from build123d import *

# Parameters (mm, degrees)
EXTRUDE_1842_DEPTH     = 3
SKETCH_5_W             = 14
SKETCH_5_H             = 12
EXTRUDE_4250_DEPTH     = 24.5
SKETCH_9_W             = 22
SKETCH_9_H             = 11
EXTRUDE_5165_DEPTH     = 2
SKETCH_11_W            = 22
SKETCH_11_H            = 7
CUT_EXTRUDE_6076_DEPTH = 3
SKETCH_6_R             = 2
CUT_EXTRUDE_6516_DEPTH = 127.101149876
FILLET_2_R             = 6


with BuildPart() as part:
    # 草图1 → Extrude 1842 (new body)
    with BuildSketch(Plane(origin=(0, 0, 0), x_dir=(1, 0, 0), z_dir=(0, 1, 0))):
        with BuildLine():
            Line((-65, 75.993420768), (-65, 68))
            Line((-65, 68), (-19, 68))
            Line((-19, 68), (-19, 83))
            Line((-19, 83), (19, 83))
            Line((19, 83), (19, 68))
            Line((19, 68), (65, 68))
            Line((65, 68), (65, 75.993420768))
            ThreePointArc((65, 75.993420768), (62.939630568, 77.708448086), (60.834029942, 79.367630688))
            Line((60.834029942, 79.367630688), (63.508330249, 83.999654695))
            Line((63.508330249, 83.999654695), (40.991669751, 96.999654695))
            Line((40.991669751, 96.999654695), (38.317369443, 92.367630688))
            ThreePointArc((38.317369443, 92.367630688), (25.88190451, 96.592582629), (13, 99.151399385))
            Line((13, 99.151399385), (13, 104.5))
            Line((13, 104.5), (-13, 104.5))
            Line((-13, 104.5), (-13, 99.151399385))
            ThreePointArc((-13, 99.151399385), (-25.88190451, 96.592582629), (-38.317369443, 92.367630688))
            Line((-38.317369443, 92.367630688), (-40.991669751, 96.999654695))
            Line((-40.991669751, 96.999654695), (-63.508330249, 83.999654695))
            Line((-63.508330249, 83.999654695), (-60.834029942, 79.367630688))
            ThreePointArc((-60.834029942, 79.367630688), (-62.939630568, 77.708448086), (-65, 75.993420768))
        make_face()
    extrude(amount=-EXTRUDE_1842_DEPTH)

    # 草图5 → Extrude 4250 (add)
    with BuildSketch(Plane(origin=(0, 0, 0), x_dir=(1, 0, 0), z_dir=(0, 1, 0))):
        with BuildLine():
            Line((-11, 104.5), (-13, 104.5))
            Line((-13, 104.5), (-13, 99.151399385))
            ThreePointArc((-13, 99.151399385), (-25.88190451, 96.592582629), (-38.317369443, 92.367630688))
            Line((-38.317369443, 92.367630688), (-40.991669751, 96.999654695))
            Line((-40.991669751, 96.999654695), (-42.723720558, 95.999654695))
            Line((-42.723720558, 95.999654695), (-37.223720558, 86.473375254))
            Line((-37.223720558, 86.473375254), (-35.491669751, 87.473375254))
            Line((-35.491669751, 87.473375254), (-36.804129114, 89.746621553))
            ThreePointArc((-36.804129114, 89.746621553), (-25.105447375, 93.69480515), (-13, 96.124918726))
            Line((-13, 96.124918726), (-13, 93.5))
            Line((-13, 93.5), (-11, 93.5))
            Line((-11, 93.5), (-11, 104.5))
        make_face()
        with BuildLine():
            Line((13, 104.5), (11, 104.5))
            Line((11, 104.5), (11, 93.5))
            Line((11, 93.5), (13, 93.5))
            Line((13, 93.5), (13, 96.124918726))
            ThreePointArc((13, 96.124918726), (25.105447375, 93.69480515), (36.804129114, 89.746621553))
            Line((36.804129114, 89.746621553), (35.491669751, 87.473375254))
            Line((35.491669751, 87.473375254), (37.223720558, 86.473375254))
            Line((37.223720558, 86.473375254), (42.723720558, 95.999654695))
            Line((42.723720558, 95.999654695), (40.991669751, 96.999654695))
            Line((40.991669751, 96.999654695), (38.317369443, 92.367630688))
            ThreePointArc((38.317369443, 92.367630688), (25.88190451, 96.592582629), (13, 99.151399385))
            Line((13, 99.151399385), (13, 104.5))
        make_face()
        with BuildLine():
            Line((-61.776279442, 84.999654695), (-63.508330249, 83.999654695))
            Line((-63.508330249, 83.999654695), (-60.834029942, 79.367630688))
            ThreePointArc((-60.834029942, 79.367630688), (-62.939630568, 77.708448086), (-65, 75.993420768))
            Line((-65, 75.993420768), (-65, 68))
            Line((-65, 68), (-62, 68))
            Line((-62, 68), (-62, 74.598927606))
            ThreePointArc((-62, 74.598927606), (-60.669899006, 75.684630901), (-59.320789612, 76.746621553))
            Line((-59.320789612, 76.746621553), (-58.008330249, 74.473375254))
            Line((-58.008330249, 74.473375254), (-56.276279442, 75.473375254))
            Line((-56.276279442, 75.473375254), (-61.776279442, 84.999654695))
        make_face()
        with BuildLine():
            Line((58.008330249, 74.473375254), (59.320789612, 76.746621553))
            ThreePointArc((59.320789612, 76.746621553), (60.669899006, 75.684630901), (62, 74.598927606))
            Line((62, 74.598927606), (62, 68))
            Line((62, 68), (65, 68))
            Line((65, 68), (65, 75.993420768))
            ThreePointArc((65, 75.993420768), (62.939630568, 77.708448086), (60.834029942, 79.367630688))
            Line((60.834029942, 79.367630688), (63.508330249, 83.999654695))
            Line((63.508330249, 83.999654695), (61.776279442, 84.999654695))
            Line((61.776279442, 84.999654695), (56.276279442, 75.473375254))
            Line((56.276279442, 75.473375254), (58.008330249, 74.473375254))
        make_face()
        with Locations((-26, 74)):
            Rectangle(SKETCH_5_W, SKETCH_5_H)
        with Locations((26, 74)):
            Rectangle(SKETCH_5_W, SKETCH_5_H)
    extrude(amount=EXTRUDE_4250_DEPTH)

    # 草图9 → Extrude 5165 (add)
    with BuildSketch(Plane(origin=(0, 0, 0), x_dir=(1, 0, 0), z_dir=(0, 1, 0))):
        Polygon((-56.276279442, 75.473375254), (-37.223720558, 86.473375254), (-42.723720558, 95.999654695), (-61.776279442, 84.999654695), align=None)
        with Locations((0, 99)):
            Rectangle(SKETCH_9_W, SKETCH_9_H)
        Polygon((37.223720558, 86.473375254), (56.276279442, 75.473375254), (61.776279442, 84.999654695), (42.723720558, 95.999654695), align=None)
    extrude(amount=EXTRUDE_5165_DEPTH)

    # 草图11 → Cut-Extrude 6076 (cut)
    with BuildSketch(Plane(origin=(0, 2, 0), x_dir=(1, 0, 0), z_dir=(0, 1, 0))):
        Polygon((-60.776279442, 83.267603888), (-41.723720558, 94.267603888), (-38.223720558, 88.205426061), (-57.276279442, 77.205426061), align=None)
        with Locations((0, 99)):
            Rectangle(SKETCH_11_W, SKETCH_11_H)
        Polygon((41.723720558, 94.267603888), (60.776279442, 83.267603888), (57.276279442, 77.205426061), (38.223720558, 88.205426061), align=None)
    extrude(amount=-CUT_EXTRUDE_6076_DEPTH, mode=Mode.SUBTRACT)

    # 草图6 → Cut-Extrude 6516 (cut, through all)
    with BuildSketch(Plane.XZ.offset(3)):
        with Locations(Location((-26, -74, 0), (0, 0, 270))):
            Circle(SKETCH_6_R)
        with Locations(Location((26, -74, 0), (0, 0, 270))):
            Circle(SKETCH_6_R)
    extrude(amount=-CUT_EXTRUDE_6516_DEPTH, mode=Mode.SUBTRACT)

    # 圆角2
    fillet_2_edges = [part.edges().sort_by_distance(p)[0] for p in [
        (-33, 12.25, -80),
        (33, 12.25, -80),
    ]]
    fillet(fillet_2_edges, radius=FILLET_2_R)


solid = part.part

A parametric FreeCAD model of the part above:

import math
import FreeCAD as App
import Part
import Sketcher

V = App.Vector
Q = App.Units.Quantity


def edges_at(feature, points):
    """Names of the edges that pass closest to the given points."""
    edges = feature.Shape.Edges
    near = lambda p: min(range(len(edges)), key=lambda i: edges[i].distToShape(Part.Vertex(*p))[0])
    return sorted({f"Edge{near(p) + 1}" for p in points})

doc = App.newDocument("Part")
body = doc.addObject("PartDesign::Body", "Body")

# Sketch on XZ plane
sketch1 = body.newObject("Sketcher::SketchObject", "Sketch")
sketch1.AttachmentSupport = (doc.getObject("XZ_Plane"), [""])
sketch1.MapMode = "FlatFace"
sketch1.addGeometry([
    Part.LineSegment(V(-65, -76, 0), V(-65, -68, 0)),  # 0
    Part.LineSegment(V(-65, -68, 0), V(-19, -68, 0)),  # 1
    Part.LineSegment(V(-19, -68, 0), V(-19, -83, 0)),  # 2
    Part.LineSegment(V(-19, -83, 0), V(19, -83, 0)),  # 3
    Part.LineSegment(V(19, -83, 0), V(19, -68, 0)),  # 4
    Part.LineSegment(V(19, -68, 0), V(65, -68, 0)),  # 5
    Part.LineSegment(V(65, -68, 0), V(65, -76, 0)),  # 6
    Part.ArcOfCircle(Part.Circle(V(0, 0, 0), V(0, 0, 1), 100), math.radians(-52.53), math.radians(-49.46)),  # 7
    Part.LineSegment(V(61, -79, 0), V(64, -84, 0)),  # 8
    Part.LineSegment(V(64, -84, 0), V(41, -97, 0)),  # 9
    Part.LineSegment(V(41, -97, 0), V(38, -92, 0)),  # 10
    Part.ArcOfCircle(Part.Circle(V(0, 0, 0), V(0, 0, 1), 100), math.radians(-82.53), math.radians(-67.47)),  # 11
    Part.LineSegment(V(13, -99, 0), V(13, -104, 0)),  # 12
    Part.LineSegment(V(13, -104, 0), V(-13, -104, 0)),  # 13
    Part.LineSegment(V(-13, -104, 0), V(-13, -99, 0)),  # 14
    Part.ArcOfCircle(Part.Circle(V(0, 0, 0), V(0, 0, 1), 100), math.radians(-112.53), math.radians(-97.47)),  # 15
    Part.LineSegment(V(-38, -92, 0), V(-41, -97, 0)),  # 16
    Part.LineSegment(V(-41, -97, 0), V(-64, -84, 0)),  # 17
    Part.LineSegment(V(-64, -84, 0), V(-61, -79, 0)),  # 18
    Part.ArcOfCircle(Part.Circle(V(0, 0, 0), V(0, 0, 1), 100), math.radians(-130.54), math.radians(-127.47)),  # 19
], False)
sketch1.addConstraint([
    Sketcher.Constraint("Coincident", 0, 2, 1, 1),
    Sketcher.Constraint("Coincident", 1, 2, 2, 1),
    Sketcher.Constraint("Coincident", 2, 2, 3, 1),
    Sketcher.Constraint("Coincident", 3, 2, 4, 1),
    Sketcher.Constraint("Coincident", 4, 2, 5, 1),
    Sketcher.Constraint("Coincident", 5, 2, 6, 1),
    Sketcher.Constraint("Coincident", 6, 2, 7, 2),
    Sketcher.Constraint("Coincident", 7, 1, 8, 1),
    Sketcher.Constraint("Coincident", 8, 2, 9, 1),
    Sketcher.Constraint("Coincident", 9, 2, 10, 1),
    Sketcher.Constraint("Coincident", 10, 2, 11, 2),
    Sketcher.Constraint("Coincident", 11, 1, 12, 1),
    Sketcher.Constraint("Coincident", 12, 2, 13, 1),
    Sketcher.Constraint("Coincident", 13, 2, 14, 1),
    Sketcher.Constraint("Coincident", 14, 2, 15, 2),
    Sketcher.Constraint("Coincident", 15, 1, 16, 1),
    Sketcher.Constraint("Coincident", 16, 2, 17, 1),
    Sketcher.Constraint("Coincident", 17, 2, 18, 1),
    Sketcher.Constraint("Coincident", 18, 2, 19, 2),
    Sketcher.Constraint("Coincident", 19, 1, 0, 1),
    Sketcher.Constraint("Vertical", 0),
    Sketcher.Constraint("Horizontal", 1),
    Sketcher.Constraint("Vertical", 2),
    Sketcher.Constraint("Horizontal", 3),
    Sketcher.Constraint("Vertical", 4),
    Sketcher.Constraint("Horizontal", 5),
    Sketcher.Constraint("Vertical", 6),
    Sketcher.Constraint("Vertical", 12),
    Sketcher.Constraint("Horizontal", 13),
    Sketcher.Constraint("Vertical", 14),
    Sketcher.Constraint("Coincident", 7, 3, -1, 1),
    Sketcher.Constraint("Coincident", 11, 3, -1, 1),
    Sketcher.Constraint("Coincident", 15, 3, -1, 1),
    Sketcher.Constraint("Coincident", 19, 3, -1, 1),
    Sketcher.Constraint("Equal", 7, 11),
    Sketcher.Constraint("Equal", 11, 15),
    Sketcher.Constraint("Equal", 15, 19),
    Sketcher.Constraint("Symmetric", 1, 2, 4, 2, -2),
    Sketcher.Constraint("Symmetric", 9, 2, 16, 2, -2),
    Sketcher.Constraint("Symmetric", 8, 2, 17, 2, -2),
    Sketcher.Constraint("Perpendicular", 8, 9),
    Sketcher.Constraint("Perpendicular", 9, 10),
    Sketcher.Constraint("Perpendicular", 16, 17),
    Sketcher.Constraint("Perpendicular", 17, 18),
    Sketcher.Constraint("Horizontal", 11, 1, 14, 2),
    Sketcher.Constraint("Horizontal", 6, 2, 19, 1),
    Sketcher.Constraint("Equal", 8, 10),
    Sketcher.Constraint("Radius", 7, Q("100.000001 mm")),
    Sketcher.Constraint("DistanceX", 1, 1, 1, 2, Q("46 mm")),
    Sketcher.Constraint("DistanceX", 3, 1, 3, 2, Q("38 mm")),
    Sketcher.Constraint("DistanceX", 13, 2, 13, 1, Q("26 mm")),
    Sketcher.Constraint("DistanceY", 2, 2, 2, 1, Q("15 mm")),
    Sketcher.Constraint("Angle", 8, Q("-60 deg")),
    Sketcher.Constraint("Distance", 9, Q("26 mm")),
    Sketcher.Constraint("DistanceY", 0, 2, -1, 1, Q("68 mm")),
    Sketcher.Constraint("DistanceY", 12, 2, -1, 1, Q("104.5 mm")),
    Sketcher.Constraint("Distance", 8, Q("5.348601 mm")),
])
pad1 = body.newObject("PartDesign::Pad", "Pad")
pad1.Profile = sketch1
pad1.Length = 3

# Sketch on XZ plane
sketch2 = body.newObject("Sketcher::SketchObject", "Sketch001")
sketch2.AttachmentSupport = (doc.getObject("XZ_Plane"), [""])
sketch2.MapMode = "FlatFace"
sketch2.addGeometry([
    Part.LineSegment(V(-11, -104.5, 0), V(-13, -104.5, 0)),  # 0
    Part.LineSegment(V(-13, -104.5, 0), V(-13, -99.2, 0)),  # 1
    Part.ArcOfCircle(Part.Circle(V(0, 0, 0), V(0, 0, 1), 100), math.radians(-112.53), math.radians(-97.47)),  # 2
    Part.LineSegment(V(-38.3, -92.4, 0), V(-41, -97, 0)),  # 3
    Part.LineSegment(V(-41, -97, 0), V(-42.7, -96, 0)),  # 4
    Part.LineSegment(V(-42.7, -96, 0), V(-37.2, -86.5, 0)),  # 5
    Part.LineSegment(V(-37.2, -86.5, 0), V(-35.5, -87.5, 0)),  # 6
    Part.LineSegment(V(-35.5, -87.5, 0), V(-36.8, -89.7, 0)),  # 7
    Part.ArcOfCircle(Part.Circle(V(0, 0, 0), V(0, 0, 1), 97), math.radians(-112.3), math.radians(-97.7)),  # 8
    Part.LineSegment(V(-13, -96.1, 0), V(-13, -93.5, 0)),  # 9
    Part.LineSegment(V(-13, -93.5, 0), V(-11, -93.5, 0)),  # 10
    Part.LineSegment(V(-11, -93.5, 0), V(-11, -104.5, 0)),  # 11
    Part.LineSegment(V(13, -104.5, 0), V(11, -104.5, 0)),  # 12
    Part.LineSegment(V(11, -104.5, 0), V(11, -93.5, 0)),  # 13
    Part.LineSegment(V(11, -93.5, 0), V(13, -93.5, 0)),  # 14
    Part.LineSegment(V(13, -93.5, 0), V(13, -96.1, 0)),  # 15
    Part.ArcOfCircle(Part.Circle(V(0, 0, 0), V(0, 0, 1), 97), math.radians(-82.3), math.radians(-67.7)),  # 16
    Part.LineSegment(V(36.8, -89.7, 0), V(35.5, -87.5, 0)),  # 17
    Part.LineSegment(V(35.5, -87.5, 0), V(37.2, -86.5, 0)),  # 18
    Part.LineSegment(V(37.2, -86.5, 0), V(42.7, -96, 0)),  # 19
    Part.LineSegment(V(42.7, -96, 0), V(41, -97, 0)),  # 20
    Part.LineSegment(V(41, -97, 0), V(38.3, -92.4, 0)),  # 21
    Part.ArcOfCircle(Part.Circle(V(0, 0, 0), V(0, 0, 1), 100), math.radians(-82.53), math.radians(-67.47)),  # 22
    Part.LineSegment(V(13, -99.2, 0), V(13, -104.5, 0)),  # 23
    Part.LineSegment(V(-61.8, -85, 0), V(-63.5, -84, 0)),  # 24
    Part.LineSegment(V(-63.5, -84, 0), V(-60.8, -79.4, 0)),  # 25
    Part.ArcOfCircle(Part.Circle(V(0, 0, 0), V(0, 0, 1), 100), math.radians(-130.54), math.radians(-127.47)),  # 26
    Part.LineSegment(V(-65, -76, 0), V(-65, -68, 0)),  # 27
    Part.LineSegment(V(-65, -68, 0), V(-62, -68, 0)),  # 28
    Part.LineSegment(V(-62, -68, 0), V(-62, -74.6, 0)),  # 29
    Part.ArcOfCircle(Part.Circle(V(0, 0, 0), V(0, 0, 1), 97), math.radians(-129.73), math.radians(-127.7)),  # 30
    Part.LineSegment(V(-59.3, -76.7, 0), V(-58, -74.5, 0)),  # 31
    Part.LineSegment(V(-58, -74.5, 0), V(-56.3, -75.5, 0)),  # 32
    Part.LineSegment(V(-56.3, -75.5, 0), V(-61.8, -85, 0)),  # 33
    Part.LineSegment(V(58, -74.5, 0), V(59.3, -76.7, 0)),  # 34
    Part.ArcOfCircle(Part.Circle(V(0, 0, 0), V(0, 0, 1), 97), math.radians(-52.3), math.radians(-50.27)),  # 35
    Part.LineSegment(V(62, -74.6, 0), V(62, -68, 0)),  # 36
    Part.LineSegment(V(62, -68, 0), V(65, -68, 0)),  # 37
    Part.LineSegment(V(65, -68, 0), V(65, -76, 0)),  # 38
    Part.ArcOfCircle(Part.Circle(V(0, 0, 0), V(0, 0, 1), 100), math.radians(-52.53), math.radians(-49.46)),  # 39
    Part.LineSegment(V(60.8, -79.4, 0), V(63.5, -84, 0)),  # 40
    Part.LineSegment(V(63.5, -84, 0), V(61.8, -85, 0)),  # 41
    Part.LineSegment(V(61.8, -85, 0), V(56.3, -75.5, 0)),  # 42
    Part.LineSegment(V(56.3, -75.5, 0), V(58, -74.5, 0)),  # 43
    Part.LineSegment(V(-33, -80, 0), V(-33, -68, 0)),  # 44
    Part.LineSegment(V(-33, -68, 0), V(-19, -68, 0)),  # 45
    Part.LineSegment(V(-19, -68, 0), V(-19, -80, 0)),  # 46
    Part.LineSegment(V(-19, -80, 0), V(-33, -80, 0)),  # 47
    Part.LineSegment(V(19, -80, 0), V(19, -68, 0)),  # 48
    Part.LineSegment(V(19, -68, 0), V(33, -68, 0)),  # 49
    Part.LineSegment(V(33, -68, 0), V(33, -80, 0)),  # 50
    Part.LineSegment(V(33, -80, 0), V(19, -80, 0)),  # 51
], False)
sketch2.addConstraint([
    Sketcher.Constraint("Coincident", 0, 2, 1, 1),
    Sketcher.Constraint("Coincident", 1, 2, 2, 2),
    Sketcher.Constraint("Coincident", 2, 1, 3, 1),
    Sketcher.Constraint("Coincident", 3, 2, 4, 1),
    Sketcher.Constraint("Coincident", 4, 2, 5, 1),
    Sketcher.Constraint("Coincident", 5, 2, 6, 1),
    Sketcher.Constraint("Coincident", 6, 2, 7, 1),
    Sketcher.Constraint("Coincident", 7, 2, 8, 1),
    Sketcher.Constraint("Coincident", 8, 2, 9, 1),
    Sketcher.Constraint("Coincident", 9, 2, 10, 1),
    Sketcher.Constraint("Coincident", 10, 2, 11, 1),
    Sketcher.Constraint("Coincident", 11, 2, 0, 1),
    Sketcher.Constraint("Coincident", 12, 2, 13, 1),
    Sketcher.Constraint("Coincident", 13, 2, 14, 1),
    Sketcher.Constraint("Coincident", 14, 2, 15, 1),
    Sketcher.Constraint("Coincident", 15, 2, 16, 1),
    Sketcher.Constraint("Coincident", 16, 2, 17, 1),
    Sketcher.Constraint("Coincident", 17, 2, 18, 1),
    Sketcher.Constraint("Coincident", 18, 2, 19, 1),
    Sketcher.Constraint("Coincident", 19, 2, 20, 1),
    Sketcher.Constraint("Coincident", 20, 2, 21, 1),
    Sketcher.Constraint("Coincident", 21, 2, 22, 2),
    Sketcher.Constraint("Coincident", 22, 1, 23, 1),
    Sketcher.Constraint("Coincident", 23, 2, 12, 1),
    Sketcher.Constraint("Coincident", 24, 2, 25, 1),
    Sketcher.Constraint("Coincident", 25, 2, 26, 2),
    Sketcher.Constraint("Coincident", 26, 1, 27, 1),
    Sketcher.Constraint("Coincident", 27, 2, 28, 1),
    Sketcher.Constraint("Coincident", 28, 2, 29, 1),
    Sketcher.Constraint("Coincident", 29, 2, 30, 1),
    Sketcher.Constraint("Coincident", 30, 2, 31, 1),
    Sketcher.Constraint("Coincident", 31, 2, 32, 1),
    Sketcher.Constraint("Coincident", 32, 2, 33, 1),
    Sketcher.Constraint("Coincident", 33, 2, 24, 1),
    Sketcher.Constraint("Coincident", 34, 2, 35, 1),
    Sketcher.Constraint("Coincident", 35, 2, 36, 1),
    Sketcher.Constraint("Coincident", 36, 2, 37, 1),
    Sketcher.Constraint("Coincident", 37, 2, 38, 1),
    Sketcher.Constraint("Coincident", 38, 2, 39, 2),
    Sketcher.Constraint("Coincident", 39, 1, 40, 1),
    Sketcher.Constraint("Coincident", 40, 2, 41, 1),
    Sketcher.Constraint("Coincident", 41, 2, 42, 1),
    Sketcher.Constraint("Coincident", 42, 2, 43, 1),
    Sketcher.Constraint("Coincident", 43, 2, 34, 1),
    Sketcher.Constraint("Coincident", 44, 2, 45, 1),
    Sketcher.Constraint("Coincident", 45, 2, 46, 1),
    Sketcher.Constraint("Coincident", 46, 2, 47, 1),
    Sketcher.Constraint("Coincident", 47, 2, 44, 1),
    Sketcher.Constraint("Coincident", 48, 2, 49, 1),
    Sketcher.Constraint("Coincident", 49, 2, 50, 1),
    Sketcher.Constraint("Coincident", 50, 2, 51, 1),
    Sketcher.Constraint("Coincident", 51, 2, 48, 1),
    Sketcher.Constraint("Horizontal", 0),
    Sketcher.Constraint("Vertical", 1),
    Sketcher.Constraint("Vertical", 9),
    Sketcher.Constraint("Horizontal", 10),
    Sketcher.Constraint("Vertical", 11),
    Sketcher.Constraint("Horizontal", 12),
    Sketcher.Constraint("Vertical", 13),
    Sketcher.Constraint("Horizontal", 14),
    Sketcher.Constraint("Vertical", 15),
    Sketcher.Constraint("Vertical", 23),
    Sketcher.Constraint("Vertical", 27),
    Sketcher.Constraint("Horizontal", 28),
    Sketcher.Constraint("Vertical", 29),
    Sketcher.Constraint("Vertical", 36),
    Sketcher.Constraint("Horizontal", 37),
    Sketcher.Constraint("Vertical", 38),
    Sketcher.Constraint("Vertical", 44),
    Sketcher.Constraint("Horizontal", 45),
    Sketcher.Constraint("Vertical", 46),
    Sketcher.Constraint("Horizontal", 47),
    Sketcher.Constraint("Vertical", 48),
    Sketcher.Constraint("Horizontal", 49),
    Sketcher.Constraint("Vertical", 50),
    Sketcher.Constraint("Horizontal", 51),
    Sketcher.Constraint("Coincident", 2, 3, -1, 1),
    Sketcher.Constraint("Coincident", 8, 3, -1, 1),
    Sketcher.Constraint("Coincident", 16, 3, -1, 1),
    Sketcher.Constraint("Coincident", 22, 3, -1, 1),
    Sketcher.Constraint("Coincident", 26, 3, -1, 1),
    Sketcher.Constraint("Coincident", 30, 3, -1, 1),
    Sketcher.Constraint("Coincident", 35, 3, -1, 1),
    Sketcher.Constraint("Coincident", 39, 3, -1, 1),
    Sketcher.Constraint("Equal", 8, 16),
    Sketcher.Constraint("Equal", 2, 22),
    Sketcher.Constraint("Equal", 22, 26),
    Sketcher.Constraint("Equal", 16, 30),
    Sketcher.Constraint("Equal", 30, 35),
    Sketcher.Constraint("Equal", 26, 39),
    Sketcher.Constraint("Symmetric", 11, 2, 12, 2, -2),
    Sketcher.Constraint("Symmetric", 9, 2, 14, 2, -2),
    Sketcher.Constraint("Symmetric", 6, 2, 17, 2, -2),
    Sketcher.Constraint("Symmetric", 5, 2, 18, 2, -2),
    Sketcher.Constraint("Symmetric", 4, 2, 19, 2, -2),
    Sketcher.Constraint("Symmetric", 3, 2, 20, 2, -2),
    Sketcher.Constraint("Symmetric", 28, 2, 36, 2, -2),
    Sketcher.Constraint("Symmetric", 24, 2, 40, 2, -2),
    Sketcher.Constraint("Symmetric", 33, 2, 41, 2, -2),
    Sketcher.Constraint("Symmetric", 32, 2, 42, 2, -2),
    Sketcher.Constraint("Symmetric", 31, 2, 43, 2, -2),
    Sketcher.Constraint("Symmetric", 45, 2, 48, 2, -2),
    Sketcher.Constraint("Symmetric", 47, 2, 50, 2, -2),
    Sketcher.Constraint("Perpendicular", 3, 4),
    Sketcher.Constraint("Perpendicular", 4, 5),
    Sketcher.Constraint("Perpendicular", 5, 6),
    Sketcher.Constraint("Perpendicular", 6, 7),
    Sketcher.Constraint("Perpendicular", 17, 18),
    Sketcher.Constraint("Perpendicular", 20, 21),
    Sketcher.Constraint("Perpendicular", 7, 24),
    Sketcher.Constraint("Perpendicular", 24, 25),
    Sketcher.Constraint("Parallel", 25, 31),
    Sketcher.Constraint("Perpendicular", 31, 32),
    Sketcher.Constraint("Perpendicular", 32, 33),
    Sketcher.Constraint("Parallel", 21, 34),
    Sketcher.Constraint("Parallel", 34, 40),
    Sketcher.Constraint("Horizontal", 1, 2, 22, 1),
    Sketcher.Constraint("Horizontal", 26, 1, 38, 2),
    Sketcher.Constraint("Horizontal", 37, 2, 44, 2),
    Sketcher.Constraint("Vertical", 1, 2, 8, 2),
    Sketcher.Constraint("Equal", 4, 6),
    Sketcher.Constraint("Equal", 20, 24),
    Sketcher.Constraint("Equal", 21, 25),
    Sketcher.Constraint("Equal", 17, 31),
    Sketcher.Constraint("Equal", 24, 32),
    Sketcher.Constraint("Equal", 19, 33),
    Sketcher.Constraint("Radius", 2, Q("100 mm")),
    Sketcher.Constraint("Radius", 8, Q("97 mm")),
    Sketcher.Constraint("DistanceX", 0, 2, 0, 1, Q("2 mm")),
    Sketcher.Constraint("DistanceX", 28, 1, 28, 2, Q("3 mm")),
    Sketcher.Constraint("DistanceX", 45, 1, 45, 2, Q("14 mm")),
    Sketcher.Constraint("DistanceY", 11, 2, 11, 1, Q("11 mm")),
    Sketcher.Constraint("DistanceY", 44, 1, 44, 2, Q("12 mm")),
    Sketcher.Constraint("Angle", 3, Q("-120 deg")),
    Sketcher.Constraint("Distance", 4, Q("2 mm")),
    Sketcher.Constraint("Distance", 5, Q("11 mm")),
    Sketcher.Constraint("DistanceX", 0, 2, -1, 1, Q("13 mm")),
    Sketcher.Constraint("DistanceX", 26, 1, -1, 1, Q("65 mm")),
    Sketcher.Constraint("DistanceY", 27, 2, -1, 1, Q("68 mm")),
    Sketcher.Constraint("DistanceX", 44, 2, -1, 1, Q("33 mm")),
    Sketcher.Constraint("DistanceY", 4, 2, 24, 2, Q("12 mm")),
    Sketcher.Constraint("DistanceY", 0, 2, -1, 1, Q("104.5 mm")),
    Sketcher.Constraint("Distance", 3, Q("5.348601 mm")),
])
pad2 = body.newObject("PartDesign::Pad", "Pad001")
pad2.Profile = sketch2
pad2.Length = 24.5
pad2.Reversed = True

# Sketch on XZ plane
sketch3 = body.newObject("Sketcher::SketchObject", "Sketch002")
sketch3.AttachmentSupport = (doc.getObject("XZ_Plane"), [""])
sketch3.MapMode = "FlatFace"
sketch3.addGeometry([
    Part.LineSegment(V(-56, -75, 0), V(-37, -86, 0)),  # 0
    Part.LineSegment(V(-37, -86, 0), V(-43, -96, 0)),  # 1
    Part.LineSegment(V(-43, -96, 0), V(-62, -85, 0)),  # 2
    Part.LineSegment(V(-62, -85, 0), V(-56, -75, 0)),  # 3
    Part.LineSegment(V(-11, -104, 0), V(-11, -94, 0)),  # 4
    Part.LineSegment(V(-11, -94, 0), V(11, -94, 0)),  # 5
    Part.LineSegment(V(11, -94, 0), V(11, -104, 0)),  # 6
    Part.LineSegment(V(11, -104, 0), V(-11, -104, 0)),  # 7
    Part.LineSegment(V(37, -86, 0), V(56, -75, 0)),  # 8
    Part.LineSegment(V(56, -75, 0), V(62, -85, 0)),  # 9
    Part.LineSegment(V(62, -85, 0), V(43, -96, 0)),  # 10
    Part.LineSegment(V(43, -96, 0), V(37, -86, 0)),  # 11
], False)
sketch3.addConstraint([
    Sketcher.Constraint("Coincident", 0, 2, 1, 1),
    Sketcher.Constraint("Coincident", 1, 2, 2, 1),
    Sketcher.Constraint("Coincident", 2, 2, 3, 1),
    Sketcher.Constraint("Coincident", 3, 2, 0, 1),
    Sketcher.Constraint("Coincident", 4, 2, 5, 1),
    Sketcher.Constraint("Coincident", 5, 2, 6, 1),
    Sketcher.Constraint("Coincident", 6, 2, 7, 1),
    Sketcher.Constraint("Coincident", 7, 2, 4, 1),
    Sketcher.Constraint("Coincident", 8, 2, 9, 1),
    Sketcher.Constraint("Coincident", 9, 2, 10, 1),
    Sketcher.Constraint("Coincident", 10, 2, 11, 1),
    Sketcher.Constraint("Coincident", 11, 2, 8, 1),
    Sketcher.Constraint("Vertical", 4),
    Sketcher.Constraint("Horizontal", 5),
    Sketcher.Constraint("Vertical", 6),
    Sketcher.Constraint("Horizontal", 7),
    Sketcher.Constraint("Symmetric", 3, 2, 8, 2, -2),
    Sketcher.Constraint("Symmetric", 2, 2, 9, 2, -2),
    Sketcher.Constraint("Symmetric", 1, 2, 10, 2, -2),
    Sketcher.Constraint("Symmetric", 0, 2, 11, 2, -2),
    Sketcher.Constraint("Perpendicular", 0, 1),
    Sketcher.Constraint("Perpendicular", 1, 2),
    Sketcher.Constraint("Perpendicular", 2, 3),
    Sketcher.Constraint("DistanceX", 5, 1, 5, 2, Q("22 mm")),
    Sketcher.Constraint("DistanceY", 4, 1, 4, 2, Q("11 mm")),
    Sketcher.Constraint("Angle", 0, Q("-30 deg")),
    Sketcher.Constraint("Distance", 0, Q("22 mm")),
    Sketcher.Constraint("Distance", 1, Q("11 mm")),
    Sketcher.Constraint("DistanceX", 4, 2, -1, 1, Q("11 mm")),
    Sketcher.Constraint("DistanceY", 4, 2, -1, 1, Q("93.5 mm")),
    Sketcher.Constraint("DistanceX", 0, 2, 8, 2, Q("93.5 mm")),
    Sketcher.Constraint("DistanceY", 0, 2, -1, 1, Q("86.473375 mm")),
])
pad3 = body.newObject("PartDesign::Pad", "Pad002")
pad3.Profile = sketch3
pad3.Length = 2
pad3.Reversed = True

# Sketch on XZ plane
sketch4 = body.newObject("Sketcher::SketchObject", "Sketch003")
sketch4.AttachmentSupport = (doc.getObject("XZ_Plane"), [""])
sketch4.MapMode = "FlatFace"
sketch4.AttachmentOffset = App.Placement(V(0, 0, -2), App.Rotation())
sketch4.addGeometry([
    Part.LineSegment(V(-42, -94, 0), V(-61, -83, 0)),  # 0
    Part.LineSegment(V(-61, -83, 0), V(-57, -77, 0)),  # 1
    Part.LineSegment(V(-57, -77, 0), V(-38, -88, 0)),  # 2
    Part.LineSegment(V(-38, -88, 0), V(-42, -94, 0)),  # 3
    Part.LineSegment(V(-11, -102, 0), V(-11, -96, 0)),  # 4
    Part.LineSegment(V(-11, -96, 0), V(11, -96, 0)),  # 5
    Part.LineSegment(V(11, -96, 0), V(11, -102, 0)),  # 6
    Part.LineSegment(V(11, -102, 0), V(-11, -102, 0)),  # 7
    Part.LineSegment(V(61, -83, 0), V(42, -94, 0)),  # 8
    Part.LineSegment(V(42, -94, 0), V(38, -88, 0)),  # 9
    Part.LineSegment(V(38, -88, 0), V(57, -77, 0)),  # 10
    Part.LineSegment(V(57, -77, 0), V(61, -83, 0)),  # 11
], False)
sketch4.addConstraint([
    Sketcher.Constraint("Coincident", 0, 2, 1, 1),
    Sketcher.Constraint("Coincident", 1, 2, 2, 1),
    Sketcher.Constraint("Coincident", 2, 2, 3, 1),
    Sketcher.Constraint("Coincident", 3, 2, 0, 1),
    Sketcher.Constraint("Coincident", 4, 2, 5, 1),
    Sketcher.Constraint("Coincident", 5, 2, 6, 1),
    Sketcher.Constraint("Coincident", 6, 2, 7, 1),
    Sketcher.Constraint("Coincident", 7, 2, 4, 1),
    Sketcher.Constraint("Coincident", 8, 2, 9, 1),
    Sketcher.Constraint("Coincident", 9, 2, 10, 1),
    Sketcher.Constraint("Coincident", 10, 2, 11, 1),
    Sketcher.Constraint("Coincident", 11, 2, 8, 1),
    Sketcher.Constraint("Vertical", 4),
    Sketcher.Constraint("Horizontal", 5),
    Sketcher.Constraint("Vertical", 6),
    Sketcher.Constraint("Horizontal", 7),
    Sketcher.Constraint("Symmetric", 3, 2, 8, 2, -2),
    Sketcher.Constraint("Symmetric", 2, 2, 9, 2, -2),
    Sketcher.Constraint("Symmetric", 1, 2, 10, 2, -2),
    Sketcher.Constraint("Symmetric", 0, 2, 11, 2, -2),
    Sketcher.Constraint("Perpendicular", 0, 1),
    Sketcher.Constraint("Perpendicular", 1, 2),
    Sketcher.Constraint("Perpendicular", 2, 3),
    Sketcher.Constraint("DistanceX", 5, 1, 5, 2, Q("22 mm")),
    Sketcher.Constraint("DistanceY", 4, 1, 4, 2, Q("7 mm")),
    Sketcher.Constraint("Angle", 0, Q("150 deg")),
    Sketcher.Constraint("Distance", 0, Q("22 mm")),
    Sketcher.Constraint("Distance", 1, Q("7 mm")),
    Sketcher.Constraint("DistanceX", 4, 2, -1, 1, Q("11 mm")),
    Sketcher.Constraint("DistanceY", 4, 2, -1, 1, Q("95.5 mm")),
    Sketcher.Constraint("DistanceX", 0, 2, -1, 1, Q("60.776279 mm")),
    Sketcher.Constraint("DistanceY", 0, 2, -1, 1, Q("83.267604 mm")),
])
pocket1 = body.newObject("PartDesign::Pocket", "Pocket")
pocket1.Profile = sketch4
pocket1.Length = 3
pocket1.Reversed = True

# Sketch on XZ plane
sketch5 = body.newObject("Sketcher::SketchObject", "Sketch004")
sketch5.AttachmentSupport = (doc.getObject("XZ_Plane"), [""])
sketch5.MapMode = "FlatFace"
sketch5.AttachmentOffset = App.Placement(V(0, 0, 3), App.Rotation())
sketch5.addGeometry([
    Part.Circle(V(-26, -74, 0), V(0, 0, 1), 2),
    Part.Circle(V(26, -74, 0), V(0, 0, 1), 2),
], False)
sketch5.addConstraint([
    Sketcher.Constraint("Equal", 0, 1),
    Sketcher.Constraint("Symmetric", 0, 3, 1, 3, -2),
    Sketcher.Constraint("Diameter", 0, Q("4 mm")),
    Sketcher.Constraint("DistanceX", 0, 3, -1, 1, Q("26 mm")),
    Sketcher.Constraint("DistanceY", 0, 3, -1, 1, Q("74 mm")),
])
pocket2 = body.newObject("PartDesign::Pocket", "Pocket001")
pocket2.Profile = sketch5
pocket2.Type = "ThroughAll"
doc.recompute()

fillet = body.newObject("PartDesign::Fillet", "Fillet")
fillet.Base = (pocket2, edges_at(pocket2, [(-33, 12.25, -80), (33, 12.25, -80)]))
fillet.Radius = 6

doc.recompute()
